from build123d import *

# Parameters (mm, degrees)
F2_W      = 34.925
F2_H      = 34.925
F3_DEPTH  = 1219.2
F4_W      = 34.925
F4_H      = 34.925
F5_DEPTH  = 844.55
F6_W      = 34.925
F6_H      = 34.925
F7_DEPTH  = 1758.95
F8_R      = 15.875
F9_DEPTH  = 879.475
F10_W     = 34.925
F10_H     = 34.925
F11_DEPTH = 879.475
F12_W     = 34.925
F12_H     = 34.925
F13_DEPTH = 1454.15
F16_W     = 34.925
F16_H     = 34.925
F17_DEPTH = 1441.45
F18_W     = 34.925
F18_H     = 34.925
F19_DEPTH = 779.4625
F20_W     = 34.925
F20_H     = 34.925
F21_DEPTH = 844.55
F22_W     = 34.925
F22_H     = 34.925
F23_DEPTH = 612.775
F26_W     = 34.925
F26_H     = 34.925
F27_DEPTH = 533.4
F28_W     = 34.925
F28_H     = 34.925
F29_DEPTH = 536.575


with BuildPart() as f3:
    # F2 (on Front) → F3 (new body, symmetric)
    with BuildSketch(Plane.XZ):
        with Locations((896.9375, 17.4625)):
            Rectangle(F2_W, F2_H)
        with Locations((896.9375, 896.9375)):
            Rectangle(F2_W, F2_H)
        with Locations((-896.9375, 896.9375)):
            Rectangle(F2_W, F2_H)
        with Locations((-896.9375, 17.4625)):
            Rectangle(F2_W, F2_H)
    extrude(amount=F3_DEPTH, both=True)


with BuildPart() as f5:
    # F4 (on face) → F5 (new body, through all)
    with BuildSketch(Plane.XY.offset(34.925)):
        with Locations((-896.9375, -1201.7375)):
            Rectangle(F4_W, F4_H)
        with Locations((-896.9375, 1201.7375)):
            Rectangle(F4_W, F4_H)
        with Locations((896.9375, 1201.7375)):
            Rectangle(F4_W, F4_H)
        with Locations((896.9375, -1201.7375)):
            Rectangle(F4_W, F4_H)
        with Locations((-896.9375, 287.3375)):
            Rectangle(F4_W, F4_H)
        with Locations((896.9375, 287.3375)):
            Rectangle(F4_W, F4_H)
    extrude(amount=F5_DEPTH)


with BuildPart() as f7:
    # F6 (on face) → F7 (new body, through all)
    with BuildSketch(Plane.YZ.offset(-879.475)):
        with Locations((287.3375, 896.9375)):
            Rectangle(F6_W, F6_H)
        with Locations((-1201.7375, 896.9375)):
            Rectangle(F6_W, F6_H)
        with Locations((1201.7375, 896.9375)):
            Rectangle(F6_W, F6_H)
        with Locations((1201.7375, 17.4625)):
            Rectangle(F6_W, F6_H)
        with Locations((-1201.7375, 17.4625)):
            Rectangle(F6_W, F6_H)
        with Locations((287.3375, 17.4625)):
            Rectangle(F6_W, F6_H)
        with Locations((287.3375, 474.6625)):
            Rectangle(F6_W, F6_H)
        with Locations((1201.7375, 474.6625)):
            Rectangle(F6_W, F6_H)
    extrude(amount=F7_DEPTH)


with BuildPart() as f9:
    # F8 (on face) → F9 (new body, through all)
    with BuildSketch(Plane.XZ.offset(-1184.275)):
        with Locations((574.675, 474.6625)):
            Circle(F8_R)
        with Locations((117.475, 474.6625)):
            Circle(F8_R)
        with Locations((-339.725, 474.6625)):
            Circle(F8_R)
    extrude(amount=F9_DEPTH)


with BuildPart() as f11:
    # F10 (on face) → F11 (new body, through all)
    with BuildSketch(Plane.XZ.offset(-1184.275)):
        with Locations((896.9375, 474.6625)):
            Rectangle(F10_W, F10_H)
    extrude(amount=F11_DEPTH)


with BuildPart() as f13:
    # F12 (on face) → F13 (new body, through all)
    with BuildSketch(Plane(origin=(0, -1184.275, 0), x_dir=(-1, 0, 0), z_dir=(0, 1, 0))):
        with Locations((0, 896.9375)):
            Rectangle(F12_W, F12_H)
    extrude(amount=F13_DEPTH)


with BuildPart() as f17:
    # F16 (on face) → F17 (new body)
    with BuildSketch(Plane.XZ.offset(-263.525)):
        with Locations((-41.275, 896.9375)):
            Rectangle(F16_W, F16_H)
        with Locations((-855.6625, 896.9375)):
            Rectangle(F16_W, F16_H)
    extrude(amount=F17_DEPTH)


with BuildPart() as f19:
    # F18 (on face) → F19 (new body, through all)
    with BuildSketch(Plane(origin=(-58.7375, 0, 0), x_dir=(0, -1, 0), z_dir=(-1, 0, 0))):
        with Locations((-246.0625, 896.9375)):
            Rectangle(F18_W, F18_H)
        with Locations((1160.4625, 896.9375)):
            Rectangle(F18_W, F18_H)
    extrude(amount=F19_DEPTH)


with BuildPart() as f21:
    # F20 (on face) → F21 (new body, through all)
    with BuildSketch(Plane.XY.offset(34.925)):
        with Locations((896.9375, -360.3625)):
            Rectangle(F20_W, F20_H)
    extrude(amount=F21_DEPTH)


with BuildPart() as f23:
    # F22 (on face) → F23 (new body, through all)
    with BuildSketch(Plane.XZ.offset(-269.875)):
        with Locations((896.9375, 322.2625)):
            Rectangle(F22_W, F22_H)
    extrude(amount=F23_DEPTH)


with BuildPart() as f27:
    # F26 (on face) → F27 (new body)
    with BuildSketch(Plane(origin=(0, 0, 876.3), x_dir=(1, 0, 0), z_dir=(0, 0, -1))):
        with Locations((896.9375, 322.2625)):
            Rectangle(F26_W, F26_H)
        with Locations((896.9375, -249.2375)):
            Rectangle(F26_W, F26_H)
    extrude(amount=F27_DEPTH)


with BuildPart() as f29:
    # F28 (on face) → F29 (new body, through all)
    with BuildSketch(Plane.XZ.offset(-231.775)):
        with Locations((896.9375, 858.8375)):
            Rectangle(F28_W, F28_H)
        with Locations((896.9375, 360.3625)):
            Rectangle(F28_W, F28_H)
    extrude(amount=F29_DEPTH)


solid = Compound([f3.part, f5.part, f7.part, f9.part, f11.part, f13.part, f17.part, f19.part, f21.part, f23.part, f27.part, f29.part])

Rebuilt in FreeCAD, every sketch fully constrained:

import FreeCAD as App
import Part
import Sketcher
from FreeCAD import Vector
Q = App.Units.Quantity

doc = App.newDocument("Part")
params = doc.addObject("Spreadsheet::Sheet", "Params")
for row, (alias, value) in enumerate([
    ("sketch1_width", "1.375 in"),
    ("pad1_length", "96 in"),
    ("sketch2_width", "1.375 in"),
    ("pad2_length", "33.25 in"),
    ("sketch3_width", "1.375 in"),
    ("pad3_length", "69.25 in"),
    ("sketch4_diameter", "1.25 in"),
    ("pad4_length", "34.625 in"),
    ("sketch5_width", "1.375 in"),
    ("pad5_length", "34.625 in"),
    ("sketch6_width", "1.375 in"),
    ("pad6_length", "57.25 in"),
    ("sketch7_width", "1.375 in"),
    ("pad7_length", "56.75 in"),
    ("sketch8_width", "1.375 in"),
    ("pad8_length", "30.6875 in"),
    ("sketch9_width", "1.375 in"),
    ("pad9_length", "33.25 in"),
    ("sketch10_width", "1.375 in"),
    ("pad10_length", "24.125 in"),
    ("sketch11_width", "1.375 in"),
    ("pad11_length", "21 in"),
    ("sketch12_width", "1.375 in"),
    ("pad12_length", "21.125 in"),
], start=1):
    params.set(f"A{row}", alias)
    params.set(f"B{row}", "=" + value)
    params.setAlias(f"B{row}", alias)

body = doc.addObject("PartDesign::Body", "Body")
body.AllowCompound = True

# Sketch on XZ plane
sketch1 = body.newObject("Sketcher::SketchObject", "Sketch")
sketch1.AttachmentSupport = (doc.getObject("XZ_Plane"), [""])
sketch1.MapMode = "FlatFace"
sketch1.addGeometry(Part.LineSegment(Vector(879, 35, 0), Vector(879, 0, 0)), False)
sketch1.addGeometry(Part.LineSegment(Vector(879, 0, 0), Vector(914, 0, 0)), False)
sketch1.addGeometry(Part.LineSegment(Vector(914, 0, 0), Vector(914, 35, 0)), False)
sketch1.addGeometry(Part.LineSegment(Vector(914, 35, 0), Vector(879, 35, 0)), False)
sketch1.addGeometry(Part.LineSegment(Vector(879, 914, 0), Vector(879, 879, 0)), False)
sketch1.addGeometry(Part.LineSegment(Vector(879, 879, 0), Vector(914, 879, 0)), False)
sketch1.addGeometry(Part.LineSegment(Vector(914, 879, 0), Vector(914, 914, 0)), False)
sketch1.addGeometry(Part.LineSegment(Vector(914, 914, 0), Vector(879, 914, 0)), False)
sketch1.addGeometry(Part.LineSegment(Vector(-914, 914, 0), Vector(-914, 879, 0)), False)
sketch1.addGeometry(Part.LineSegment(Vector(-914, 879, 0), Vector(-879, 879, 0)), False)
sketch1.addGeometry(Part.LineSegment(Vector(-879, 879, 0), Vector(-879, 914, 0)), False)
sketch1.addGeometry(Part.LineSegment(Vector(-879, 914, 0), Vector(-914, 914, 0)), False)
sketch1.addGeometry(Part.LineSegment(Vector(-914, 35, 0), Vector(-914, 0, 0)), False)
sketch1.addGeometry(Part.LineSegment(Vector(-914, 0, 0), Vector(-879, 0, 0)), False)
sketch1.addGeometry(Part.LineSegment(Vector(-879, 0, 0), Vector(-879, 35, 0)), False)
sketch1.addGeometry(Part.LineSegment(Vector(-879, 35, 0), Vector(-914, 35, 0)), False)
sketch1.addConstraint(Sketcher.Constraint("Coincident", 0, 2, 1, 1))
sketch1.addConstraint(Sketcher.Constraint("Coincident", 1, 2, 2, 1))
sketch1.addConstraint(Sketcher.Constraint("Coincident", 2, 2, 3, 1))
sketch1.addConstraint(Sketcher.Constraint("Coincident", 3, 2, 0, 1))
sketch1.addConstraint(Sketcher.Constraint("Coincident", 4, 2, 5, 1))
sketch1.addConstraint(Sketcher.Constraint("Coincident", 5, 2, 6, 1))
sketch1.addConstraint(Sketcher.Constraint("Coincident", 6, 2, 7, 1))
sketch1.addConstraint(Sketcher.Constraint("Coincident", 7, 2, 4, 1))
sketch1.addConstraint(Sketcher.Constraint("Coincident", 8, 2, 9, 1))
sketch1.addConstraint(Sketcher.Constraint("Coincident", 9, 2, 10, 1))
sketch1.addConstraint(Sketcher.Constraint("Coincident", 10, 2, 11, 1))
sketch1.addConstraint(Sketcher.Constraint("Coincident", 11, 2, 8, 1))
sketch1.addConstraint(Sketcher.Constraint("Coincident", 12, 2, 13, 1))
sketch1.addConstraint(Sketcher.Constraint("Coincident", 13, 2, 14, 1))
sketch1.addConstraint(Sketcher.Constraint("Coincident", 14, 2, 15, 1))
sketch1.addConstraint(Sketcher.Constraint("Coincident", 15, 2, 12, 1))
sketch1.addConstraint(Sketcher.Constraint("Vertical", 0))
sketch1.addConstraint(Sketcher.Constraint("Horizontal", 1))
sketch1.addConstraint(Sketcher.Constraint("Vertical", 2))
sketch1.addConstraint(Sketcher.Constraint("Horizontal", 3))
sketch1.addConstraint(Sketcher.Constraint("Vertical", 4))
sketch1.addConstraint(Sketcher.Constraint("Horizontal", 5))
sketch1.addConstraint(Sketcher.Constraint("Vertical", 6))
sketch1.addConstraint(Sketcher.Constraint("Horizontal", 7))
sketch1.addConstraint(Sketcher.Constraint("Vertical", 8))
sketch1.addConstraint(Sketcher.Constraint("Horizontal", 9))
sketch1.addConstraint(Sketcher.Constraint("Vertical", 10))
sketch1.addConstraint(Sketcher.Constraint("Horizontal", 11))
sketch1.addConstraint(Sketcher.Constraint("Vertical", 12))
sketch1.addConstraint(Sketcher.Constraint("Horizontal", 13))
sketch1.addConstraint(Sketcher.Constraint("Vertical", 14))
sketch1.addConstraint(Sketcher.Constraint("Horizontal", 15))
sketch1.addConstraint(Sketcher.Constraint("Symmetric", 1, 2, 12, 2, -1, 1))
sketch1.addConstraint(Sketcher.Constraint("Symmetric", 5, 2, 8, 2, -2))
sketch1.addConstraint(Sketcher.Constraint("Symmetric", 7, 2, 10, 2, -2))
sketch1.addConstraint(Sketcher.Constraint("Symmetric", 0, 2, 13, 2, -2))
sketch1.addConstraint(Sketcher.Constraint("Horizontal", 3, 2, 14, 2))
sketch1.addConstraint(Sketcher.Constraint("Vertical", 3, 2, 4, 2))
sketch1.addConstraint(Sketcher.Constraint("Vertical", 2, 2, 5, 2))
sketch1.addConstraint(Sketcher.Constraint("Equal", 15, 0))
sketch1.addConstraint(Sketcher.Constraint("Equal", 2, 4))
sketch1.addConstraint(Sketcher.Constraint("DistanceX", -1, 1, 1, 2, Q("36 in")))
sketch1.addConstraint(Sketcher.Constraint("DistanceY", -1, 1, 6, 2, Q("36 in")))
sketch1.addConstraint(Sketcher.Constraint("DistanceX", 1, 1, 1, 2, Q("1.375 in")))
sketch1.setExpression("Constraints[43]", "Params.sketch1_width")
pad1 = body.newObject("PartDesign::Pad", "Pad")
pad1.Profile = sketch1
pad1.setExpression("Length", "Params.pad1_length")
pad1.Midplane = True
body2 = doc.addObject("PartDesign::Body", "Body001")
body2.AllowCompound = True

# Sketch on XY plane
sketch2 = body2.newObject("Sketcher::SketchObject", "Sketch001")
sketch2.AttachmentSupport = (doc.getObject("XY_Plane001"), [""])
sketch2.MapMode = "FlatFace"
sketch2.AttachmentOffset = App.Placement(Vector(0, 0, 1.375 * 25.4), App.Rotation())
sketch2.addGeometry(Part.LineSegment(Vector(-914, -1184, 0), Vector(-914, -1219, 0)), False)
sketch2.addGeometry(Part.LineSegment(Vector(-914, -1219, 0), Vector(-879, -1219, 0)), False)
sketch2.addGeometry(Part.LineSegment(Vector(-879, -1219, 0), Vector(-879, -1184, 0)), False)
sketch2.addGeometry(Part.LineSegment(Vector(-879, -1184, 0), Vector(-914, -1184, 0)), False)
sketch2.addGeometry(Part.LineSegment(Vector(-914, 1219, 0), Vector(-914, 1184, 0)), False)
sketch2.addGeometry(Part.LineSegment(Vector(-914, 1184, 0), Vector(-879, 1184, 0)), False)
sketch2.addGeometry(Part.LineSegment(Vector(-879, 1184, 0), Vector(-879, 1219, 0)), False)
sketch2.addGeometry(Part.LineSegment(Vector(-879, 1219, 0), Vector(-914, 1219, 0)), False)
sketch2.addGeometry(Part.LineSegment(Vector(879, 1219, 0), Vector(879, 1184, 0)), False)
sketch2.addGeometry(Part.LineSegment(Vector(879, 1184, 0), Vector(914, 1184, 0)), False)
sketch2.addGeometry(Part.LineSegment(Vector(914, 1184, 0), Vector(914, 1219, 0)), False)
sketch2.addGeometry(Part.LineSegment(Vector(914, 1219, 0), Vector(879, 1219, 0)), False)
sketch2.addGeometry(Part.LineSegment(Vector(879, -1184, 0), Vector(879, -1219, 0)), False)
sketch2.addGeometry(Part.LineSegment(Vector(879, -1219, 0), Vector(914, -1219, 0)), False)
sketch2.addGeometry(Part.LineSegment(Vector(914, -1219, 0), Vector(914, -1184, 0)), False)
sketch2.addGeometry(Part.LineSegment(Vector(914, -1184, 0), Vector(879, -1184, 0)), False)
sketch2.addGeometry(Part.LineSegment(Vector(-914, 305, 0), Vector(-914, 270, 0)), False)
sketch2.addGeometry(Part.LineSegment(Vector(-914, 270, 0), Vector(-879, 270, 0)), False)
sketch2.addGeometry(Part.LineSegment(Vector(-879, 270, 0), Vector(-879, 305, 0)), False)
sketch2.addGeometry(Part.LineSegment(Vector(-879, 305, 0), Vector(-914, 305, 0)), False)
sketch2.addGeometry(Part.LineSegment(Vector(879, 305, 0), Vector(879, 270, 0)), False)
sketch2.addGeometry(Part.LineSegment(Vector(879, 270, 0), Vector(914, 270, 0)), False)
sketch2.addGeometry(Part.LineSegment(Vector(914, 270, 0), Vector(914, 305, 0)), False)
sketch2.addGeometry(Part.LineSegment(Vector(914, 305, 0), Vector(879, 305, 0)), False)
sketch2.addConstraint(Sketcher.Constraint("Coincident", 0, 2, 1, 1))
sketch2.addConstraint(Sketcher.Constraint("Coincident", 1, 2, 2, 1))
sketch2.addConstraint(Sketcher.Constraint("Coincident", 2, 2, 3, 1))
sketch2.addConstraint(Sketcher.Constraint("Coincident", 3, 2, 0, 1))
sketch2.addConstraint(Sketcher.Constraint("Coincident", 4, 2, 5, 1))
sketch2.addConstraint(Sketcher.Constraint("Coincident", 5, 2, 6, 1))
sketch2.addConstraint(Sketcher.Constraint("Coincident", 6, 2, 7, 1))
sketch2.addConstraint(Sketcher.Constraint("Coincident", 7, 2, 4, 1))
sketch2.addConstraint(Sketcher.Constraint("Coincident", 8, 2, 9, 1))
sketch2.addConstraint(Sketcher.Constraint("Coincident", 9, 2, 10, 1))
sketch2.addConstraint(Sketcher.Constraint("Coincident", 10, 2, 11, 1))
sketch2.addConstraint(Sketcher.Constraint("Coincident", 11, 2, 8, 1))
sketch2.addConstraint(Sketcher.Constraint("Coincident", 12, 2, 13, 1))
sketch2.addConstraint(Sketcher.Constraint("Coincident", 13, 2, 14, 1))
sketch2.addConstraint(Sketcher.Constraint("Coincident", 14, 2, 15, 1))
sketch2.addConstraint(Sketcher.Constraint("Coincident", 15, 2, 12, 1))
sketch2.addConstraint(Sketcher.Constraint("Coincident", 16, 2, 17, 1))
sketch2.addConstraint(Sketcher.Constraint("Coincident", 17, 2, 18, 1))
sketch2.addConstraint(Sketcher.Constraint("Coincident", 18, 2, 19, 1))
sketch2.addConstraint(Sketcher.Constraint("Coincident", 19, 2, 16, 1))
sketch2.addConstraint(Sketcher.Constraint("Coincident", 20, 2, 21, 1))
sketch2.addConstraint(Sketcher.Constraint("Coincident", 21, 2, 22, 1))
sketch2.addConstraint(Sketcher.Constraint("Coincident", 22, 2, 23, 1))
sketch2.addConstraint(Sketcher.Constraint("Coincident", 23, 2, 20, 1))
sketch2.addConstraint(Sketcher.Constraint("Vertical", 0))
sketch2.addConstraint(Sketcher.Constraint("Horizontal", 1))
sketch2.addConstraint(Sketcher.Constraint("Vertical", 2))
sketch2.addConstraint(Sketcher.Constraint("Horizontal", 3))
sketch2.addConstraint(Sketcher.Constraint("Vertical", 4))
sketch2.addConstraint(Sketcher.Constraint("Horizontal", 5))
sketch2.addConstraint(Sketcher.Constraint("Vertical", 6))
sketch2.addConstraint(Sketcher.Constraint("Horizontal", 7))
sketch2.addConstraint(Sketcher.Constraint("Vertical", 8))
sketch2.addConstraint(Sketcher.Constraint("Horizontal", 9))
sketch2.addConstraint(Sketcher.Constraint("Vertical", 10))
sketch2.addConstraint(Sketcher.Constraint("Horizontal", 11))
sketch2.addConstraint(Sketcher.Constraint("Vertical", 12))
sketch2.addConstraint(Sketcher.Constraint("Horizontal", 13))
sketch2.addConstraint(Sketcher.Constraint("Vertical", 14))
sketch2.addConstraint(Sketcher.Constraint("Horizontal", 15))
sketch2.addConstraint(Sketcher.Constraint("Vertical", 16))
sketch2.addConstraint(Sketcher.Constraint("Horizontal", 17))
sketch2.addConstraint(Sketcher.Constraint("Vertical", 18))
sketch2.addConstraint(Sketcher.Constraint("Horizontal", 19))
sketch2.addConstraint(Sketcher.Constraint("Vertical", 20))
sketch2.addConstraint(Sketcher.Constraint("Horizontal", 21))
sketch2.addConstraint(Sketcher.Constraint("Vertical", 22))
sketch2.addConstraint(Sketcher.Constraint("Horizontal", 23))
sketch2.addConstraint(Sketcher.Constraint("Symmetric", 2, 2, 8, 2, -1, 1))
sketch2.addConstraint(Sketcher.Constraint("Symmetric", 0, 2, 10, 2, -1, 1))
sketch2.addConstraint(Sketcher.Constraint("Symmetric", 6, 2, 12, 2, -1, 1))
sketch2.addConstraint(Sketcher.Constraint("Symmetric", 4, 2, 14, 2, -1, 1))
sketch2.addConstraint(Sketcher.Constraint("Symmetric", 5, 2, 8, 2, -2))
sketch2.addConstraint(Sketcher.Constraint("Symmetric", 7, 2, 10, 2, -2))
sketch2.addConstraint(Sketcher.Constraint("Symmetric", 17, 2, 20, 2, -2))
sketch2.addConstraint(Sketcher.Constraint("Symmetric", 19, 2, 22, 2, -2))
sketch2.addConstraint(Sketcher.Constraint("Vertical", 7, 2, 16, 2))
sketch2.addConstraint(Sketcher.Constraint("Vertical", 6, 2, 17, 2))
sketch2.addConstraint(Sketcher.Constraint("Equal", 23, 0))
sketch2.addConstraint(Sketcher.Constraint("Equal", 14, 16))
sketch2.addConstraint(Sketcher.Constraint("DistanceX", 0, 2, -1, 1, Q("36 in")))
sketch2.addConstraint(Sketcher.Constraint("DistanceY", 0, 2, -1, 1, Q("48 in")))
sketch2.addConstraint(Sketcher.Constraint("DistanceY", -1, 1, 18, 2, Q("12 in")))
sketch2.addConstraint(Sketcher.Constraint("DistanceX", 1, 1, 1, 2, Q("1.375 in")))
sketch2.setExpression("Constraints[63]", "Params.sketch2_width")
pad2 = body2.newObject("PartDesign::Pad", "Pad001")
pad2.Profile = sketch2
pad2.setExpression("Length", "Params.pad2_length")
body3 = doc.addObject("PartDesign::Body", "Body002")
body3.AllowCompound = True

# Sketch on YZ plane
sketch3 = body3.newObject("Sketcher::SketchObject", "Sketch002")
sketch3.AttachmentSupport = (doc.getObject("YZ_Plane002"), [""])
sketch3.MapMode = "FlatFace"
sketch3.AttachmentOffset = App.Placement(Vector(0, 0, -34.625 * 25.4), App.Rotation())
sketch3.addGeometry(Part.LineSegment(Vector(270, 914, 0), Vector(270, 879, 0)), False)
sketch3.addGeometry(Part.LineSegment(Vector(270, 879, 0), Vector(305, 879, 0)), False)
sketch3.addGeometry(Part.LineSegment(Vector(305, 879, 0), Vector(305, 914, 0)), False)
sketch3.addGeometry(Part.LineSegment(Vector(305, 914, 0), Vector(270, 914, 0)), False)
sketch3.addGeometry(Part.LineSegment(Vector(-1219, 914, 0), Vector(-1219, 879, 0)), False)
sketch3.addGeometry(Part.LineSegment(Vector(-1219, 879, 0), Vector(-1184, 879, 0)), False)
sketch3.addGeometry(Part.LineSegment(Vector(-1184, 879, 0), Vector(-1184, 914, 0)), False)
sketch3.addGeometry(Part.LineSegment(Vector(-1184, 914, 0), Vector(-1219, 914, 0)), False)
sketch3.addGeometry(Part.LineSegment(Vector(1184, 914, 0), Vector(1184, 879, 0)), False)
sketch3.addGeometry(Part.LineSegment(Vector(1184, 879, 0), Vector(1219, 879, 0)), False)
sketch3.addGeometry(Part.LineSegment(Vector(1219, 879, 0), Vector(1219, 914, 0)), False)
sketch3.addGeometry(Part.LineSegment(Vector(1219, 914, 0), Vector(1184, 914, 0)), False)
sketch3.addGeometry(Part.LineSegment(Vector(1184, 35, 0), Vector(1184, 0, 0)), False)
sketch3.addGeometry(Part.LineSegment(Vector(1184, 0, 0), Vector(1219, 0, 0)), False)
sketch3.addGeometry(Part.LineSegment(Vector(1219, 0, 0), Vector(1219, 35, 0)), False)
sketch3.addGeometry(Part.LineSegment(Vector(1219, 35, 0), Vector(1184, 35, 0)), False)
sketch3.addGeometry(Part.LineSegment(Vector(-1219, 35, 0), Vector(-1219, 0, 0)), False)
sketch3.addGeometry(Part.LineSegment(Vector(-1219, 0, 0), Vector(-1184, 0, 0)), False)
sketch3.addGeometry(Part.LineSegment(Vector(-1184, 0, 0), Vector(-1184, 35, 0)), False)
sketch3.addGeometry(Part.LineSegment(Vector(-1184, 35, 0), Vector(-1219, 35, 0)), False)
sketch3.addGeometry(Part.LineSegment(Vector(270, 35, 0), Vector(270, 0, 0)), False)
sketch3.addGeometry(Part.LineSegment(Vector(270, 0, 0), Vector(305, 0, 0)), False)
sketch3.addGeometry(Part.LineSegment(Vector(305, 0, 0), Vector(305, 35, 0)), False)
sketch3.addGeometry(Part.LineSegment(Vector(305, 35, 0), Vector(270, 35, 0)), False)
sketch3.addGeometry(Part.LineSegment(Vector(270, 492, 0), Vector(270, 457, 0)), False)
sketch3.addGeometry(Part.LineSegment(Vector(270, 457, 0), Vector(305, 457, 0)), False)
sketch3.addGeometry(Part.LineSegment(Vector(305, 457, 0), Vector(305, 492, 0)), False)
sketch3.addGeometry(Part.LineSegment(Vector(305, 492, 0), Vector(270, 492, 0)), False)
sketch3.addGeometry(Part.LineSegment(Vector(1184, 492, 0), Vector(1184, 457, 0)), False)
sketch3.addGeometry(Part.LineSegment(Vector(1184, 457, 0), Vector(1219, 457, 0)), False)
sketch3.addGeometry(Part.LineSegment(Vector(1219, 457, 0), Vector(1219, 492, 0)), False)
sketch3.addGeometry(Part.LineSegment(Vector(1219, 492, 0), Vector(1184, 492, 0)), False)
sketch3.addConstraint(Sketcher.Constraint("Coincident", 0, 2, 1, 1))
sketch3.addConstraint(Sketcher.Constraint("Coincident", 1, 2, 2, 1))
sketch3.addConstraint(Sketcher.Constraint("Coincident", 2, 2, 3, 1))
sketch3.addConstraint(Sketcher.Constraint("Coincident", 3, 2, 0, 1))
sketch3.addConstraint(Sketcher.Constraint("Coincident", 4, 2, 5, 1))
sketch3.addConstraint(Sketcher.Constraint("Coincident", 5, 2, 6, 1))
sketch3.addConstraint(Sketcher.Constraint("Coincident", 6, 2, 7, 1))
sketch3.addConstraint(Sketcher.Constraint("Coincident", 7, 2, 4, 1))
sketch3.addConstraint(Sketcher.Constraint("Coincident", 8, 2, 9, 1))
sketch3.addConstraint(Sketcher.Constraint("Coincident", 9, 2, 10, 1))
sketch3.addConstraint(Sketcher.Constraint("Coincident", 10, 2, 11, 1))
sketch3.addConstraint(Sketcher.Constraint("Coincident", 11, 2, 8, 1))
sketch3.addConstraint(Sketcher.Constraint("Coincident", 12, 2, 13, 1))
sketch3.addConstraint(Sketcher.Constraint("Coincident", 13, 2, 14, 1))
sketch3.addConstraint(Sketcher.Constraint("Coincident", 14, 2, 15, 1))
sketch3.addConstraint(Sketcher.Constraint("Coincident", 15, 2, 12, 1))
sketch3.addConstraint(Sketcher.Constraint("Coincident", 16, 2, 17, 1))
sketch3.addConstraint(Sketcher.Constraint("Coincident", 17, 2, 18, 1))
sketch3.addConstraint(Sketcher.Constraint("Coincident", 18, 2, 19, 1))
sketch3.addConstraint(Sketcher.Constraint("Coincident", 19, 2, 16, 1))
sketch3.addConstraint(Sketcher.Constraint("Coincident", 20, 2, 21, 1))
sketch3.addConstraint(Sketcher.Constraint("Coincident", 21, 2, 22, 1))
sketch3.addConstraint(Sketcher.Constraint("Coincident", 22, 2, 23, 1))
sketch3.addConstraint(Sketcher.Constraint("Coincident", 23, 2, 20, 1))
sketch3.addConstraint(Sketcher.Constraint("Coincident", 24, 2, 25, 1))
sketch3.addConstraint(Sketcher.Constraint("Coincident", 25, 2, 26, 1))
sketch3.addConstraint(Sketcher.Constraint("Coincident", 26, 2, 27, 1))
sketch3.addConstraint(Sketcher.Constraint("Coincident", 27, 2, 24, 1))
sketch3.addConstraint(Sketcher.Constraint("Coincident", 28, 2, 29, 1))
sketch3.addConstraint(Sketcher.Constraint("Coincident", 29, 2, 30, 1))
sketch3.addConstraint(Sketcher.Constraint("Coincident", 30, 2, 31, 1))
sketch3.addConstraint(Sketcher.Constraint("Coincident", 31, 2, 28, 1))
sketch3.addConstraint(Sketcher.Constraint("Vertical", 0))
sketch3.addConstraint(Sketcher.Constraint("Horizontal", 1))
sketch3.addConstraint(Sketcher.Constraint("Vertical", 2))
sketch3.addConstraint(Sketcher.Constraint("Horizontal", 3))
sketch3.addConstraint(Sketcher.Constraint("Vertical", 4))
sketch3.addConstraint(Sketcher.Constraint("Horizontal", 5))
sketch3.addConstraint(Sketcher.Constraint("Vertical", 6))
sketch3.addConstraint(Sketcher.Constraint("Horizontal", 7))
sketch3.addConstraint(Sketcher.Constraint("Vertical", 8))
sketch3.addConstraint(Sketcher.Constraint("Horizontal", 9))
sketch3.addConstraint(Sketcher.Constraint("Vertical", 10))
sketch3.addConstraint(Sketcher.Constraint("Horizontal", 11))
sketch3.addConstraint(Sketcher.Constraint("Vertical", 12))
sketch3.addConstraint(Sketcher.Constraint("Horizontal", 13))
sketch3.addConstraint(Sketcher.Constraint("Vertical", 14))
sketch3.addConstraint(Sketcher.Constraint("Horizontal", 15))
sketch3.addConstraint(Sketcher.Constraint("Vertical", 16))
sketch3.addConstraint(Sketcher.Constraint("Horizontal", 17))
sketch3.addConstraint(Sketcher.Constraint("Vertical", 18))
sketch3.addConstraint(Sketcher.Constraint("Horizontal", 19))
sketch3.addConstraint(Sketcher.Constraint("Vertical", 20))
sketch3.addConstraint(Sketcher.Constraint("Horizontal", 21))
sketch3.addConstraint(Sketcher.Constraint("Vertical", 22))
sketch3.addConstraint(Sketcher.Constraint("Horizontal", 23))
sketch3.addConstraint(Sketcher.Constraint("Vertical", 24))
sketch3.addConstraint(Sketcher.Constraint("Horizontal", 25))
sketch3.addConstraint(Sketcher.Constraint("Vertical", 26))
sketch3.addConstraint(Sketcher.Constraint("Horizontal", 27))
sketch3.addConstraint(Sketcher.Constraint("Vertical", 28))
sketch3.addConstraint(Sketcher.Constraint("Horizontal", 29))
sketch3.addConstraint(Sketcher.Constraint("Vertical", 30))
sketch3.addConstraint(Sketcher.Constraint("Horizontal", 31))
sketch3.addConstraint(Sketcher.Constraint("Symmetric", 13, 2, 16, 2, -1, 1))
sketch3.addConstraint(Sketcher.Constraint("Symmetric", 5, 2, 8, 2, -2))
sketch3.addConstraint(Sketcher.Constraint("Symmetric", 7, 2, 10, 2, -2))
sketch3.addConstraint(Sketcher.Constraint("Symmetric", 12, 2, 17, 2, -2))
sketch3.addConstraint(Sketcher.Constraint("PointOnObject", 20, 2, -1))
sketch3.addConstraint(Sketcher.Constraint("Horizontal", 1, 2, 4, 2))
sketch3.addConstraint(Sketcher.Constraint("Horizontal", 3, 2, 6, 2))
sketch3.addConstraint(Sketcher.Constraint("Horizontal", 15, 2, 18, 2))
sketch3.addConstraint(Sketcher.Constraint("Horizontal", 19, 2, 22, 2))
sketch3.addConstraint(Sketcher.Constraint("Horizontal", 25, 2, 28, 2))
sketch3.addConstraint(Sketcher.Constraint("Horizontal", 27, 2, 30, 2))
sketch3.addConstraint(Sketcher.Constraint("Vertical", 11, 2, 12, 2))
sketch3.addConstraint(Sketcher.Constraint("Vertical", 10, 2, 13, 2))
sketch3.addConstraint(Sketcher.Constraint("Vertical", 3, 2, 20, 2))
sketch3.addConstraint(Sketcher.Constraint("Vertical", 2, 2, 21, 2))
sketch3.addConstraint(Sketcher.Constraint("Vertical", 23, 2, 24, 2))
sketch3.addConstraint(Sketcher.Constraint("Vertical", 22, 2, 25, 2))
sketch3.addConstraint(Sketcher.Constraint("Vertical", 15, 2, 28, 2))
sketch3.addConstraint(Sketcher.Constraint("Vertical", 14, 2, 29, 2))
sketch3.addConstraint(Sketcher.Constraint("Equal", 3, 5))
sketch3.addConstraint(Sketcher.Constraint("Equal", 31, 0))
sketch3.addConstraint(Sketcher.Constraint("Equal", 10, 12))
sketch3.addConstraint(Sketcher.Constraint("Equal", 22, 24))
sketch3.addConstraint(Sketcher.Constraint("DistanceX", -1, 1, 1, 2, Q("12 in")))
sketch3.addConstraint(Sketcher.Constraint("DistanceY", -1, 1, 2, 2, Q("36 in")))
sketch3.addConstraint(Sketcher.Constraint("DistanceX", 4, 2, -1, 1, Q("48 in")))
sketch3.addConstraint(Sketcher.Constraint("DistanceY", -1, 1, 24, 2, Q("18 in")))
sketch3.addConstraint(Sketcher.Constraint("DistanceX", 1, 1, 1, 2, Q("1.375 in")))
sketch3.setExpression("Constraints[91]", "Params.sketch3_width")
pad3 = body3.newObject("PartDesign::Pad", "Pad002")
pad3.Profile = sketch3
pad3.setExpression("Length", "Params.pad3_length")
body4 = doc.addObject("PartDesign::Body", "Body003")
body4.AllowCompound = True

# Sketch on XZ plane
sketch4 = body4.newObject("Sketcher::SketchObject", "Sketch003")
sketch4.AttachmentSupport = (doc.getObject("XZ_Plane003"), [""])
sketch4.MapMode = "FlatFace"
sketch4.AttachmentOffset = App.Placement(Vector(0, 0, -46.625 * 25.4), App.Rotation())
sketch4.addGeometry(Part.Circle(Vector(575, 475, 0), Vector(0, 0, 1), 16), False)
sketch4.addGeometry(Part.Circle(Vector(117, 475, 0), Vector(0, 0, 1), 16), False)
sketch4.addGeometry(Part.Circle(Vector(-340, 475, 0), Vector(0, 0, 1), 16), False)
sketch4.addConstraint(Sketcher.Constraint("Equal", 0, 1))
sketch4.addConstraint(Sketcher.Constraint("Equal", 1, 2))
sketch4.addConstraint(Sketcher.Constraint("Horizontal", 0, 3, 1, 3))
sketch4.addConstraint(Sketcher.Constraint("Horizontal", 1, 3, 2, 3))
sketch4.addConstraint(Sketcher.Constraint("Diameter", 0, Q("1.25 in")))
sketch4.addConstraint(Sketcher.Constraint("DistanceX", 1, 3, 0, 3, Q("18 in")))
sketch4.addConstraint(Sketcher.Constraint("DistanceX", 2, 3, 1, 3, Q("18 in")))
sketch4.addConstraint(Sketcher.Constraint("DistanceX", -1, 1, 0, 3, Q("22.625 in")))
sketch4.addConstraint(Sketcher.Constraint("DistanceY", -1, 1, 0, 3, Q("18.6875 in")))
sketch4.setExpression("Constraints[4]", "Params.sketch4_diameter")
pad4 = body4.newObject("PartDesign::Pad", "Pad003")
pad4.Profile = sketch4
pad4.setExpression("Length", "Params.pad4_length")
body5 = doc.addObject("PartDesign::Body", "Body004")

# Sketch on XZ plane
sketch5 = body5.newObject("Sketcher::SketchObject", "Sketch004")
sketch5.AttachmentSupport = (doc.getObject("XZ_Plane004"), [""])
sketch5.MapMode = "FlatFace"
sketch5.AttachmentOffset = App.Placement(Vector(0, 0, -46.625 * 25.4), App.Rotation())
sketch5.addGeometry(Part.LineSegment(Vector(879, 492, 0), Vector(879, 457, 0)), False)
sketch5.addGeometry(Part.LineSegment(Vector(879, 457, 0), Vector(914, 457, 0)), False)
sketch5.addGeometry(Part.LineSegment(Vector(914, 457, 0), Vector(914, 492, 0)), False)
sketch5.addGeometry(Part.LineSegment(Vector(914, 492, 0), Vector(879, 492, 0)), False)
sketch5.addConstraint(Sketcher.Constraint("Coincident", 0, 2, 1, 1))
sketch5.addConstraint(Sketcher.Constraint("Coincident", 1, 2, 2, 1))
sketch5.addConstraint(Sketcher.Constraint("Coincident", 2, 2, 3, 1))
sketch5.addConstraint(Sketcher.Constraint("Coincident", 3, 2, 0, 1))
sketch5.addConstraint(Sketcher.Constraint("Vertical", 0))
sketch5.addConstraint(Sketcher.Constraint("Horizontal", 1))
sketch5.addConstraint(Sketcher.Constraint("Vertical", 2))
sketch5.addConstraint(Sketcher.Constraint("Horizontal", 3))
sketch5.addConstraint(Sketcher.Constraint("Equal", 3, 0))
sketch5.addConstraint(Sketcher.Constraint("DistanceY", -1, 1, 0, 2, Q("18 in")))
sketch5.addConstraint(Sketcher.Constraint("DistanceX", -1, 1, 1, 2, Q("36 in")))
sketch5.addConstraint(Sketcher.Constraint("DistanceX", 1, 1, 1, 2, Q("1.375 in")))
sketch5.setExpression("Constraints[11]", "Params.sketch5_width")
pad5 = body5.newObject("PartDesign::Pad", "Pad004")
pad5.Profile = sketch5
pad5.setExpression("Length", "Params.pad5_length")
body6 = doc.addObject("PartDesign::Body", "Body005")

# Sketch on XZ plane
sketch6 = body6.newObject("Sketcher::SketchObject", "Sketch005")
sketch6.AttachmentSupport = (doc.getObject("XZ_Plane005"), [""])
sketch6.MapMode = "FlatFace"
sketch6.AttachmentOffset = App.Placement(Vector(0, 0, 46.625 * 25.4), App.Rotation())
sketch6.addGeometry(Part.LineSegment(Vector(17, 914, 0), Vector(17, 879, 0)), False)
sketch6.addGeometry(Part.LineSegment(Vector(17, 879, 0), Vector(-17, 879, 0)), False)
sketch6.addGeometry(Part.LineSegment(Vector(-17, 879, 0), Vector(-17, 914, 0)), False)
sketch6.addGeometry(Part.LineSegment(Vector(-17, 914, 0), Vector(17, 914, 0)), False)
sketch6.addConstraint(Sketcher.Constraint("Coincident", 0, 2, 1, 1))
sketch6.addConstraint(Sketcher.Constraint("Coincident", 1, 2, 2, 1))
sketch6.addConstraint(Sketcher.Constraint("Coincident", 2, 2, 3, 1))
sketch6.addConstraint(Sketcher.Constraint("Coincident", 3, 2, 0, 1))
sketch6.addConstraint(Sketcher.Constraint("Vertical", 0))
sketch6.addConstraint(Sketcher.Constraint("Horizontal", 1))
sketch6.addConstraint(Sketcher.Constraint("Vertical", 2))
sketch6.addConstraint(Sketcher.Constraint("Horizontal", 3))
sketch6.addConstraint(Sketcher.Constraint("Equal", 3, 0))
sketch6.addConstraint(Sketcher.Constraint("DistanceY", -1, 1, 2, 2, Q("36 in")))
sketch6.addConstraint(Sketcher.Constraint("DistanceX", 1, 2, 1, 1, Q("1.375 in")))
sketch6.addConstraint(Sketcher.Constraint("DistanceX", -1, 1, 0, 2, Q("0.6875 in")))
sketch6.setExpression("Constraints[10]", "Params.sketch6_width")
pad6 = body6.newObject("PartDesign::Pad", "Pad005")
pad6.Profile = sketch6
pad6.setExpression("Length", "Params.pad6_length")
pad6.Reversed = True
body7 = doc.addObject("PartDesign::Body", "Body006")
body7.AllowCompound = True

# Sketch on XZ plane
sketch7 = body7.newObject("Sketcher::SketchObject", "Sketch006")
sketch7.AttachmentSupport = (doc.getObject("XZ_Plane006"), [""])
sketch7.MapMode = "FlatFace"
sketch7.AttachmentOffset = App.Placement(Vector(0, 0, -10.375 * 25.4), App.Rotation())
sketch7.addGeometry(Part.LineSegment(Vector(-59, 914, 0), Vector(-59, 879, 0)), False)
sketch7.addGeometry(Part.LineSegment(Vector(-59, 879, 0), Vector(-24, 879, 0)), False)
sketch7.addGeometry(Part.LineSegment(Vector(-24, 879, 0), Vector(-24, 914, 0)), False)
sketch7.addGeometry(Part.LineSegment(Vector(-24, 914, 0), Vector(-59, 914, 0)), False)
sketch7.addGeometry(Part.LineSegment(Vector(-873, 914, 0), Vector(-873, 879, 0)), False)
sketch7.addGeometry(Part.LineSegment(Vector(-873, 879, 0), Vector(-838, 879, 0)), False)
sketch7.addGeometry(Part.LineSegment(Vector(-838, 879, 0), Vector(-838, 914, 0)), False)
sketch7.addGeometry(Part.LineSegment(Vector(-838, 914, 0), Vector(-873, 914, 0)), False)
sketch7.addConstraint(Sketcher.Constraint("Coincident", 0, 2, 1, 1))
sketch7.addConstraint(Sketcher.Constraint("Coincident", 1, 2, 2, 1))
sketch7.addConstraint(Sketcher.Constraint("Coincident", 2, 2, 3, 1))
sketch7.addConstraint(Sketcher.Constraint("Coincident", 3, 2, 0, 1))
sketch7.addConstraint(Sketcher.Constraint("Coincident", 4, 2, 5, 1))
sketch7.addConstraint(Sketcher.Constraint("Coincident", 5, 2, 6, 1))
sketch7.addConstraint(Sketcher.Constraint("Coincident", 6, 2, 7, 1))
sketch7.addConstraint(Sketcher.Constraint("Coincident", 7, 2, 4, 1))
sketch7.addConstraint(Sketcher.Constraint("Vertical", 0))
sketch7.addConstraint(Sketcher.Constraint("Horizontal", 1))
sketch7.addConstraint(Sketcher.Constraint("Vertical", 2))
sketch7.addConstraint(Sketcher.Constraint("Horizontal", 3))
sketch7.addConstraint(Sketcher.Constraint("Vertical", 4))
sketch7.addConstraint(Sketcher.Constraint("Horizontal", 5))
sketch7.addConstraint(Sketcher.Constraint("Vertical", 6))
sketch7.addConstraint(Sketcher.Constraint("Horizontal", 7))
sketch7.addConstraint(Sketcher.Constraint("Horizontal", 1, 2, 4, 2))
sketch7.addConstraint(Sketcher.Constraint("Horizontal", 3, 2, 6, 2))
sketch7.addConstraint(Sketcher.Constraint("Equal", 3, 5))
sketch7.addConstraint(Sketcher.Constraint("Equal", 7, 0))
sketch7.addConstraint(Sketcher.Constraint("DistanceY", -1, 1, 2, 2, Q("36 in")))
sketch7.addConstraint(Sketcher.Constraint("DistanceX", 5, 2, -1, 1, Q("33 in")))
sketch7.addConstraint(Sketcher.Constraint("DistanceX", 1, 1, 1, 2, Q("1.375 in")))
sketch7.addConstraint(Sketcher.Constraint("DistanceX", 0, 2, -1, 1, Q("2.3125 in")))
sketch7.setExpression("Constraints[22]", "Params.sketch7_width")
pad7 = body7.newObject("PartDesign::Pad", "Pad006")
pad7.Profile = sketch7
pad7.setExpression("Length", "Params.pad7_length")
body8 = doc.addObject("PartDesign::Body", "Body007")
body8.AllowCompound = True

# Sketch on YZ plane
sketch8 = body8.newObject("Sketcher::SketchObject", "Sketch007")
sketch8.AttachmentSupport = (doc.getObject("YZ_Plane007"), [""])
sketch8.MapMode = "FlatFace"
sketch8.AttachmentOffset = App.Placement(Vector(0, 0, -2.3125 * 25.4), App.Rotation())
sketch8.addGeometry(Part.LineSegment(Vector(264, 914, 0), Vector(264, 879, 0)), False)
sketch8.addGeometry(Part.LineSegment(Vector(264, 879, 0), Vector(229, 879, 0)), False)
sketch8.addGeometry(Part.LineSegment(Vector(229, 879, 0), Vector(229, 914, 0)), False)
sketch8.addGeometry(Part.LineSegment(Vector(229, 914, 0), Vector(264, 914, 0)), False)
sketch8.addGeometry(Part.LineSegment(Vector(-1143, 914, 0), Vector(-1143, 879, 0)), False)
sketch8.addGeometry(Part.LineSegment(Vector(-1143, 879, 0), Vector(-1178, 879, 0)), False)
sketch8.addGeometry(Part.LineSegment(Vector(-1178, 879, 0), Vector(-1178, 914, 0)), False)
sketch8.addGeometry(Part.LineSegment(Vector(-1178, 914, 0), Vector(-1143, 914, 0)), False)
sketch8.addConstraint(Sketcher.Constraint("Coincident", 0, 2, 1, 1))
sketch8.addConstraint(Sketcher.Constraint("Coincident", 1, 2, 2, 1))
sketch8.addConstraint(Sketcher.Constraint("Coincident", 2, 2, 3, 1))
sketch8.addConstraint(Sketcher.Constraint("Coincident", 3, 2, 0, 1))
sketch8.addConstraint(Sketcher.Constraint("Coincident", 4, 2, 5, 1))
sketch8.addConstraint(Sketcher.Constraint("Coincident", 5, 2, 6, 1))
sketch8.addConstraint(Sketcher.Constraint("Coincident", 6, 2, 7, 1))
sketch8.addConstraint(Sketcher.Constraint("Coincident", 7, 2, 4, 1))
sketch8.addConstraint(Sketcher.Constraint("Vertical", 0))
sketch8.addConstraint(Sketcher.Constraint("Horizontal", 1))
sketch8.addConstraint(Sketcher.Constraint("Vertical", 2))
sketch8.addConstraint(Sketcher.Constraint("Horizontal", 3))
sketch8.addConstraint(Sketcher.Constraint("Vertical", 4))
sketch8.addConstraint(Sketcher.Constraint("Horizontal", 5))
sketch8.addConstraint(Sketcher.Constraint("Vertical", 6))
sketch8.addConstraint(Sketcher.Constraint("Horizontal", 7))
sketch8.addConstraint(Sketcher.Constraint("Horizontal", 1, 2, 4, 2))
sketch8.addConstraint(Sketcher.Constraint("Horizontal", 3, 2, 6, 2))
sketch8.addConstraint(Sketcher.Constraint("Equal", 3, 5))
sketch8.addConstraint(Sketcher.Constraint("Equal", 7, 0))
sketch8.addConstraint(Sketcher.Constraint("DistanceX", -1, 1, 1, 2, Q("9 in")))
sketch8.addConstraint(Sketcher.Constraint("DistanceY", -1, 1, 2, 2, Q("36 in")))
sketch8.addConstraint(Sketcher.Constraint("DistanceX", 4, 2, -1, 1, Q("45 in")))
sketch8.addConstraint(Sketcher.Constraint("DistanceX", 1, 2, 1, 1, Q("1.375 in")))
sketch8.setExpression("Constraints[23]", "Params.sketch8_width")
pad8 = body8.newObject("PartDesign::Pad", "Pad007")
pad8.Profile = sketch8
pad8.setExpression("Length", "Params.pad8_length")
pad8.Reversed = True
body9 = doc.addObject("PartDesign::Body", "Body008")

# Sketch on XY plane
sketch9 = body9.newObject("Sketcher::SketchObject", "Sketch008")
sketch9.AttachmentSupport = (doc.getObject("XY_Plane008"), [""])
sketch9.MapMode = "FlatFace"
sketch9.AttachmentOffset = App.Placement(Vector(0, 0, 1.375 * 25.4), App.Rotation())
sketch9.addGeometry(Part.LineSegment(Vector(879, -343, 0), Vector(879, -378, 0)), False)
sketch9.addGeometry(Part.LineSegment(Vector(879, -378, 0), Vector(914, -378, 0)), False)
sketch9.addGeometry(Part.LineSegment(Vector(914, -378, 0), Vector(914, -343, 0)), False)
sketch9.addGeometry(Part.LineSegment(Vector(914, -343, 0), Vector(879, -343, 0)), False)
sketch9.addConstraint(Sketcher.Constraint("Coincident", 0, 2, 1, 1))
sketch9.addConstraint(Sketcher.Constraint("Coincident", 1, 2, 2, 1))
sketch9.addConstraint(Sketcher.Constraint("Coincident", 2, 2, 3, 1))
sketch9.addConstraint(Sketcher.Constraint("Coincident", 3, 2, 0, 1))
sketch9.addConstraint(Sketcher.Constraint("Vertical", 0))
sketch9.addConstraint(Sketcher.Constraint("Horizontal", 1))
sketch9.addConstraint(Sketcher.Constraint("Vertical", 2))
sketch9.addConstraint(Sketcher.Constraint("Horizontal", 3))
sketch9.addConstraint(Sketcher.Constraint("Equal", 3, 0))
sketch9.addConstraint(Sketcher.Constraint("DistanceX", -1, 1, 1, 2, Q("36 in")))
sketch9.addConstraint(Sketcher.Constraint("DistanceY", 2, 2, -1, 1, Q("13.5 in")))
sketch9.addConstraint(Sketcher.Constraint("DistanceX", 1, 1, 1, 2, Q("1.375 in")))
sketch9.setExpression("Constraints[11]", "Params.sketch9_width")
pad9 = body9.newObject("PartDesign::Pad", "Pad008")
pad9.Profile = sketch9
pad9.setExpression("Length", "Params.pad9_length")
body10 = doc.addObject("PartDesign::Body", "Body009")

# Sketch on XZ plane
sketch10 = body10.newObject("Sketcher::SketchObject", "Sketch009")
sketch10.AttachmentSupport = (doc.getObject("XZ_Plane009"), [""])
sketch10.MapMode = "FlatFace"
sketch10.AttachmentOffset = App.Placement(Vector(0, 0, -10.625 * 25.4), App.Rotation())
sketch10.addGeometry(Part.LineSegment(Vector(879, 340, 0), Vector(879, 305, 0)), False)
sketch10.addGeometry(Part.LineSegment(Vector(879, 305, 0), Vector(914, 305, 0)), False)
sketch10.addGeometry(Part.LineSegment(Vector(914, 305, 0), Vector(914, 340, 0)), False)
sketch10.addGeometry(Part.LineSegment(Vector(914, 340, 0), Vector(879, 340, 0)), False)
sketch10.addConstraint(Sketcher.Constraint("Coincident", 0, 2, 1, 1))
sketch10.addConstraint(Sketcher.Constraint("Coincident", 1, 2, 2, 1))
sketch10.addConstraint(Sketcher.Constraint("Coincident", 2, 2, 3, 1))
sketch10.addConstraint(Sketcher.Constraint("Coincident", 3, 2, 0, 1))
sketch10.addConstraint(Sketcher.Constraint("Vertical", 0))
sketch10.addConstraint(Sketcher.Constraint("Horizontal", 1))
sketch10.addConstraint(Sketcher.Constraint("Vertical", 2))
sketch10.addConstraint(Sketcher.Constraint("Horizontal", 3))
sketch10.addConstraint(Sketcher.Constraint("Equal", 3, 0))
sketch10.addConstraint(Sketcher.Constraint("DistanceY", -1, 1, 0, 2, Q("12 in")))
sketch10.addConstraint(Sketcher.Constraint("DistanceX", -1, 1, 1, 2, Q("36 in")))
sketch10.addConstraint(Sketcher.Constraint("DistanceX", 1, 1, 1, 2, Q("1.375 in")))
sketch10.setExpression("Constraints[11]", "Params.sketch10_width")
pad10 = body10.newObject("PartDesign::Pad", "Pad009")
pad10.Profile = sketch10
pad10.setExpression("Length", "Params.pad10_length")
body11 = doc.addObject("PartDesign::Body", "Body010")
body11.AllowCompound = True

# Sketch on XY plane
sketch11 = body11.newObject("Sketcher::SketchObject", "Sketch010")
sketch11.AttachmentSupport = (doc.getObject("XY_Plane010"), [""])
sketch11.MapMode = "FlatFace"
sketch11.AttachmentOffset = App.Placement(Vector(0, 0, 34.5 * 25.4), App.Rotation())
sketch11.addGeometry(Part.LineSegment(Vector(879, -340, 0), Vector(879, -305, 0)), False)
sketch11.addGeometry(Part.LineSegment(Vector(879, -305, 0), Vector(914, -305, 0)), False)
sketch11.addGeometry(Part.LineSegment(Vector(914, -305, 0), Vector(914, -340, 0)), False)
sketch11.addGeometry(Part.LineSegment(Vector(914, -340, 0), Vector(879, -340, 0)), False)
sketch11.addGeometry(Part.LineSegment(Vector(879, 232, 0), Vector(879, 267, 0)), False)
sketch11.addGeometry(Part.LineSegment(Vector(879, 267, 0), Vector(914, 267, 0)), False)
sketch11.addGeometry(Part.LineSegment(Vector(914, 267, 0), Vector(914, 232, 0)), False)
sketch11.addGeometry(Part.LineSegment(Vector(914, 232, 0), Vector(879, 232, 0)), False)
sketch11.addConstraint(Sketcher.Constraint("Coincident", 0, 2, 1, 1))
sketch11.addConstraint(Sketcher.Constraint("Coincident", 1, 2, 2, 1))
sketch11.addConstraint(Sketcher.Constraint("Coincident", 2, 2, 3, 1))
sketch11.addConstraint(Sketcher.Constraint("Coincident", 3, 2, 0, 1))
sketch11.addConstraint(Sketcher.Constraint("Coincident", 4, 2, 5, 1))
sketch11.addConstraint(Sketcher.Constraint("Coincident", 5, 2, 6, 1))
sketch11.addConstraint(Sketcher.Constraint("Coincident", 6, 2, 7, 1))
sketch11.addConstraint(Sketcher.Constraint("Coincident", 7, 2, 4, 1))
sketch11.addConstraint(Sketcher.Constraint("Vertical", 0))
sketch11.addConstraint(Sketcher.Constraint("Horizontal", 1))
sketch11.addConstraint(Sketcher.Constraint("Vertical", 2))
sketch11.addConstraint(Sketcher.Constraint("Horizontal", 3))
sketch11.addConstraint(Sketcher.Constraint("Vertical", 4))
sketch11.addConstraint(Sketcher.Constraint("Horizontal", 5))
sketch11.addConstraint(Sketcher.Constraint("Vertical", 6))
sketch11.addConstraint(Sketcher.Constraint("Horizontal", 7))
sketch11.addConstraint(Sketcher.Constraint("Vertical", 3, 2, 4, 2))
sketch11.addConstraint(Sketcher.Constraint("Vertical", 2, 2, 5, 2))
sketch11.addConstraint(Sketcher.Constraint("Equal", 7, 0))
sketch11.addConstraint(Sketcher.Constraint("Equal", 2, 4))
sketch11.addConstraint(Sketcher.Constraint("DistanceY", 0, 2, -1, 1, Q("12 in")))
sketch11.addConstraint(Sketcher.Constraint("DistanceX", -1, 1, 1, 2, Q("36 in")))
sketch11.addConstraint(Sketcher.Constraint("DistanceY", -1, 1, 4, 2, Q("10.5 in")))
sketch11.addConstraint(Sketcher.Constraint("DistanceX", 1, 1, 1, 2, Q("1.375 in")))
sketch11.setExpression("Constraints[23]", "Params.sketch11_width")
pad11 = body11.newObject("PartDesign::Pad", "Pad010")
pad11.Profile = sketch11
pad11.setExpression("Length", "Params.pad11_length")
pad11.Reversed = True
body12 = doc.addObject("PartDesign::Body", "Body011")
body12.AllowCompound = True

# Sketch on XZ plane
sketch12 = body12.newObject("Sketcher::SketchObject", "Sketch011")
sketch12.AttachmentSupport = (doc.getObject("XZ_Plane011"), [""])
sketch12.MapMode = "FlatFace"
sketch12.AttachmentOffset = App.Placement(Vector(0, 0, -9.125 * 25.4), App.Rotation())
sketch12.addGeometry(Part.LineSegment(Vector(879, 876, 0), Vector(879, 841, 0)), False)
sketch12.addGeometry(Part.LineSegment(Vector(879, 841, 0), Vector(914, 841, 0)), False)
sketch12.addGeometry(Part.LineSegment(Vector(914, 841, 0), Vector(914, 876, 0)), False)
sketch12.addGeometry(Part.LineSegment(Vector(914, 876, 0), Vector(879, 876, 0)), False)
sketch12.addGeometry(Part.LineSegment(Vector(879, 378, 0), Vector(879, 343, 0)), False)
sketch12.addGeometry(Part.LineSegment(Vector(879, 343, 0), Vector(914, 343, 0)), False)
sketch12.addGeometry(Part.LineSegment(Vector(914, 343, 0), Vector(914, 378, 0)), False)
sketch12.addGeometry(Part.LineSegment(Vector(914, 378, 0), Vector(879, 378, 0)), False)
sketch12.addConstraint(Sketcher.Constraint("Coincident", 0, 2, 1, 1))
sketch12.addConstraint(Sketcher.Constraint("Coincident", 1, 2, 2, 1))
sketch12.addConstraint(Sketcher.Constraint("Coincident", 2, 2, 3, 1))
sketch12.addConstraint(Sketcher.Constraint("Coincident", 3, 2, 0, 1))
sketch12.addConstraint(Sketcher.Constraint("Coincident", 4, 2, 5, 1))
sketch12.addConstraint(Sketcher.Constraint("Coincident", 5, 2, 6, 1))
sketch12.addConstraint(Sketcher.Constraint("Coincident", 6, 2, 7, 1))
sketch12.addConstraint(Sketcher.Constraint("Coincident", 7, 2, 4, 1))
sketch12.addConstraint(Sketcher.Constraint("Vertical", 0))
sketch12.addConstraint(Sketcher.Constraint("Horizontal", 1))
sketch12.addConstraint(Sketcher.Constraint("Vertical", 2))
sketch12.addConstraint(Sketcher.Constraint("Horizontal", 3))
sketch12.addConstraint(Sketcher.Constraint("Vertical", 4))
sketch12.addConstraint(Sketcher.Constraint("Horizontal", 5))
sketch12.addConstraint(Sketcher.Constraint("Vertical", 6))
sketch12.addConstraint(Sketcher.Constraint("Horizontal", 7))
sketch12.addConstraint(Sketcher.Constraint("Vertical", 3, 2, 4, 2))
sketch12.addConstraint(Sketcher.Constraint("Vertical", 2, 2, 5, 2))
sketch12.addConstraint(Sketcher.Constraint("Equal", 7, 0))
sketch12.addConstraint(Sketcher.Constraint("Equal", 2, 4))
sketch12.addConstraint(Sketcher.Constraint("DistanceX", -1, 1, 1, 2, Q("36 in")))
sketch12.addConstraint(Sketcher.Constraint("DistanceY", 4, 2, 3, 2, Q("21 in")))
sketch12.addConstraint(Sketcher.Constraint("DistanceY", -1, 1, 2, 2, Q("34.5 in")))
sketch12.addConstraint(Sketcher.Constraint("DistanceX", 1, 1, 1, 2, Q("1.375 in")))
sketch12.setExpression("Constraints[23]", "Params.sketch12_width")
pad12 = body12.newObject("PartDesign::Pad", "Pad011")
pad12.Profile = sketch12
pad12.setExpression("Length", "Params.pad12_length")

doc.recompute()
